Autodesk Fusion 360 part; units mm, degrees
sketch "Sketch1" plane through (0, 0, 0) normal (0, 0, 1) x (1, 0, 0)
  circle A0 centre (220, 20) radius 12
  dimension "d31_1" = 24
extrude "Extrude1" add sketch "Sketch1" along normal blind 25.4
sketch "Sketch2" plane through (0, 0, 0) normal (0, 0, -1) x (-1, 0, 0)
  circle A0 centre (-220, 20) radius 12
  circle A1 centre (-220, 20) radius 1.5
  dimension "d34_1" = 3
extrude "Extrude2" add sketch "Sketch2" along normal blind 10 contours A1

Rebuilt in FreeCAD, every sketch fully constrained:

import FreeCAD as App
import Part
import Sketcher

V = App.Vector

doc = App.newDocument("Part")
body = doc.addObject("PartDesign::Body", "Body")

sketch1 = body.newObject("Sketcher::SketchObject", "Sketch")
sketch1.AttachmentSupport = (doc.getObject("XY_Plane"), [""])
sketch1.MapMode = "FlatFace"
sketch1.addGeometry(Part.Circle(V(220, 20, 0), V(0, 0, 1), 12), False)
sketch1.addConstraint([
    Sketcher.Constraint("Diameter", 0, 24.0),
    Sketcher.Constraint("DistanceX", -1, 1, 0, 3, 220.0),
    Sketcher.Constraint("DistanceY", -1, 1, 0, 3, 20.0),
])
pad1 = body.newObject("PartDesign::Pad", "Pad")
pad1.Profile = sketch1
pad1.Length = 25.4

sketch2 = body.newObject("Sketcher::SketchObject", "Sketch001")
sketch2.AttachmentSupport = (doc.getObject("XY_Plane"), [""])
sketch2.MapMode = "FlatFace"
sketch2.addGeometry(Part.Circle(V(220, 20, 0), V(0, 0, 1), 1.5), False)
sketch2.addConstraint([
    Sketcher.Constraint("Diameter", 0, 3.0),
    Sketcher.Constraint("DistanceX", -1, 1, 0, 3, 220.0),
    Sketcher.Constraint("DistanceY", -1, 1, 0, 3, 20.0),
])
pad2 = body.newObject("PartDesign::Pad", "Pad001")
pad2.Profile = sketch2
pad2.Length = 10
pad2.Reversed = True

doc.recompute()
